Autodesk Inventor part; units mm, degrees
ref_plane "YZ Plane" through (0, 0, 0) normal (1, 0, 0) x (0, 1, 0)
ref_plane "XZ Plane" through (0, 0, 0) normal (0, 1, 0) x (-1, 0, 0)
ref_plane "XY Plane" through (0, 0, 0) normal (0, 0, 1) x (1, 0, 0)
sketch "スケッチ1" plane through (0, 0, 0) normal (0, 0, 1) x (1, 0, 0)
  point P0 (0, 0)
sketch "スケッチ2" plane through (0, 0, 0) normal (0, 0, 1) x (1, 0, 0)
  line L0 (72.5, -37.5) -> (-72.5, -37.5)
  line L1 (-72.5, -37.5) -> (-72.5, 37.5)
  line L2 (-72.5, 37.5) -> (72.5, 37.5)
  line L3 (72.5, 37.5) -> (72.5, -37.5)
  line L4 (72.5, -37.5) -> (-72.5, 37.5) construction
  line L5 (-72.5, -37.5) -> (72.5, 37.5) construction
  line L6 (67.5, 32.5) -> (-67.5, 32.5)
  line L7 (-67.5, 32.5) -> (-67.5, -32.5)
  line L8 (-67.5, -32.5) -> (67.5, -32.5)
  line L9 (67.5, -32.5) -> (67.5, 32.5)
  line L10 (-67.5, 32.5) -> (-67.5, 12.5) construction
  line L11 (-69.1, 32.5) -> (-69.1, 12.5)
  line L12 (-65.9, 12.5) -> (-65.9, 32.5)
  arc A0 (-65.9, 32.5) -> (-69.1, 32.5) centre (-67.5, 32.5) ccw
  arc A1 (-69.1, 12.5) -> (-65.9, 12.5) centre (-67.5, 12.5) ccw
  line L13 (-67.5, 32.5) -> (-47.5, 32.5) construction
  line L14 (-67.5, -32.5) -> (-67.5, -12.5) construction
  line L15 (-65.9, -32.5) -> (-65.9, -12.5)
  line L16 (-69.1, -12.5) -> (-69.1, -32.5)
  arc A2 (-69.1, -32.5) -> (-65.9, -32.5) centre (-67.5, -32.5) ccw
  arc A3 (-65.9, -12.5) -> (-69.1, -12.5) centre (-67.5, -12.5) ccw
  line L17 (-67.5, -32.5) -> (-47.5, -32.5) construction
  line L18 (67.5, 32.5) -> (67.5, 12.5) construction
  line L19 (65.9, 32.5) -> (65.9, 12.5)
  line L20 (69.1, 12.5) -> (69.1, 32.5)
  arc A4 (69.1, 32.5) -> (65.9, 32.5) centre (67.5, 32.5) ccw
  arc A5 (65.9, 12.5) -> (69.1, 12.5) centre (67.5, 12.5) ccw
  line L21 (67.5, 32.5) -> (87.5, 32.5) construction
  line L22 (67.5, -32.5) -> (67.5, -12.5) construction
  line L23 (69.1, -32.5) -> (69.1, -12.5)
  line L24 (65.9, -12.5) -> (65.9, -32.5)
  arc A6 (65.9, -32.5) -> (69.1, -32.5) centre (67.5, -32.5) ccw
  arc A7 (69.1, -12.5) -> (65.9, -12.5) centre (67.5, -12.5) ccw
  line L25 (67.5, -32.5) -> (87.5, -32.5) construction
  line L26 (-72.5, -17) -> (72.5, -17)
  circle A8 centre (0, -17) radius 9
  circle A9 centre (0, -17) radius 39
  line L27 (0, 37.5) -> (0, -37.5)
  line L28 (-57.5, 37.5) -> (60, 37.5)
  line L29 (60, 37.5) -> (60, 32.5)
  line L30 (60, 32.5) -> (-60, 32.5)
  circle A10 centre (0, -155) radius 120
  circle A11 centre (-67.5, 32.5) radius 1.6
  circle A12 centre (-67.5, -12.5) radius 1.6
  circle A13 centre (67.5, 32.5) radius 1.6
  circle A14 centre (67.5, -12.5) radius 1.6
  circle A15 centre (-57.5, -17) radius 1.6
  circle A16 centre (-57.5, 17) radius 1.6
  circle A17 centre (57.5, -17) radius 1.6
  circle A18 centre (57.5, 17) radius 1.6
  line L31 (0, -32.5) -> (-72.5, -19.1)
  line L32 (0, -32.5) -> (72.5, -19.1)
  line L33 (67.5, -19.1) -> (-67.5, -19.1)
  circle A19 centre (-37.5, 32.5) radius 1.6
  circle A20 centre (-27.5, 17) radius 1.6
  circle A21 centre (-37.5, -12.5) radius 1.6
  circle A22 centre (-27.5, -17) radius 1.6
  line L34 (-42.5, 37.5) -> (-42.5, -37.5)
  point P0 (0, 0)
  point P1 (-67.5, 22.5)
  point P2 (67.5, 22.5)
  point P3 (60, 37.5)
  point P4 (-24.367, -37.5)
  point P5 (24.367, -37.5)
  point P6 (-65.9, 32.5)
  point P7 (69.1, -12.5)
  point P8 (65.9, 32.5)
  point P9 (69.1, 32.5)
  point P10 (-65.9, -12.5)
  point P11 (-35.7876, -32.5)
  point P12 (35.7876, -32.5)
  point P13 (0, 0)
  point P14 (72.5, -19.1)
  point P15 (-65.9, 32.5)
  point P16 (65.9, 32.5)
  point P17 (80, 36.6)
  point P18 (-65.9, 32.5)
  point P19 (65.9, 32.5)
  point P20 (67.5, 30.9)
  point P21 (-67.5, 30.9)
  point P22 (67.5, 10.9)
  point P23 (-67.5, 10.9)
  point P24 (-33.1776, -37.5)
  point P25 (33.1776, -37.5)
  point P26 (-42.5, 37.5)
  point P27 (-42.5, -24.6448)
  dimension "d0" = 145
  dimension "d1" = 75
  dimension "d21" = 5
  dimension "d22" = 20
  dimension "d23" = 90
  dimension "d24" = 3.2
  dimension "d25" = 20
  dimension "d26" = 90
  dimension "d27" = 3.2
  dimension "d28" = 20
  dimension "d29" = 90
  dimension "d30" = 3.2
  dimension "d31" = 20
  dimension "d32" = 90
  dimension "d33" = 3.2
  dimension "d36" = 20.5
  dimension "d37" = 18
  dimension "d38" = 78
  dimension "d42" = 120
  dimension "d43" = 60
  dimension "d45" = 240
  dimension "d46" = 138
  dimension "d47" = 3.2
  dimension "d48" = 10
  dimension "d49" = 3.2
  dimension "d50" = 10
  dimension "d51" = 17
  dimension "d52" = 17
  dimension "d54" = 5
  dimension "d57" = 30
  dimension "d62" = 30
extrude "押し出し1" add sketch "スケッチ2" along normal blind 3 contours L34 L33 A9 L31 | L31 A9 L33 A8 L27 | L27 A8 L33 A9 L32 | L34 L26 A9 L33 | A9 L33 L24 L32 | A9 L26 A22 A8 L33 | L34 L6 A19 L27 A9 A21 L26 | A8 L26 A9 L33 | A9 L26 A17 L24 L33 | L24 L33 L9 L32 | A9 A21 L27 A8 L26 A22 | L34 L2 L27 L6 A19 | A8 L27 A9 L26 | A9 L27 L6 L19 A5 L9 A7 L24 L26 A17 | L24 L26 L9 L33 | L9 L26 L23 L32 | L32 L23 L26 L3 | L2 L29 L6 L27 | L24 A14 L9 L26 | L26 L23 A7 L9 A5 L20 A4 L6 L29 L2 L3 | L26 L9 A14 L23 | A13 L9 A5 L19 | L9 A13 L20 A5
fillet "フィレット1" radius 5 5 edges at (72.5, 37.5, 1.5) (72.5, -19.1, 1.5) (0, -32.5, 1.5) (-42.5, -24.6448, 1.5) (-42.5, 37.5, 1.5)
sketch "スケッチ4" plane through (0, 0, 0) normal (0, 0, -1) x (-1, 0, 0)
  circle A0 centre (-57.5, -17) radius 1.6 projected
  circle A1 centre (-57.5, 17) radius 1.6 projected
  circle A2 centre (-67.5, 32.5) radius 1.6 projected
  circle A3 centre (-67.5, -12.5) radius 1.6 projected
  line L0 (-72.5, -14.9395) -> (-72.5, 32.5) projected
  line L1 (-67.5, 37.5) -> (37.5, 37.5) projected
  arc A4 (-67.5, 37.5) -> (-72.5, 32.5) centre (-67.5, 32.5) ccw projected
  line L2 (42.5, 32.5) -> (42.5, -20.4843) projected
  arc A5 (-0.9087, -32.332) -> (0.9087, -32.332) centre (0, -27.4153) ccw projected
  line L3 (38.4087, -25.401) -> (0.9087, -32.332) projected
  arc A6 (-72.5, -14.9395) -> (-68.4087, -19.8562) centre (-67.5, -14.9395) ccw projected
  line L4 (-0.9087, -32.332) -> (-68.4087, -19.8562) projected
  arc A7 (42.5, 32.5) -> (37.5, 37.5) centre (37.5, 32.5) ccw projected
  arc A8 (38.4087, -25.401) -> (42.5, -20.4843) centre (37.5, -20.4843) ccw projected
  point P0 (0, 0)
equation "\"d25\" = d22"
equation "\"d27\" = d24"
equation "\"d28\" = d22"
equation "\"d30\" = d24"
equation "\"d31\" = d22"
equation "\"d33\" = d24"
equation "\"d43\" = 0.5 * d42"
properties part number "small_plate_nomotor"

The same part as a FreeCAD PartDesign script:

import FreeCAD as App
import Part
import Sketcher

V = App.Vector
Q = App.Units.Quantity


def edges_at(feature, points):
    """Names of the edges that pass closest to the given points."""
    edges = feature.Shape.Edges
    near = lambda p: min(range(len(edges)), key=lambda i: edges[i].distToShape(Part.Vertex(*p))[0])
    return sorted({f"Edge{near(p) + 1}" for p in points})


def add_polygon(sketch, points):
    """Adds a closed chain of lines whose ends are joined by coincident constraints."""
    first, n = sketch.GeometryCount, len(points)
    for a, b in zip(points, points[1:] + points[:1]):
        sketch.addGeometry(Part.LineSegment(App.Vector(*a, 0), App.Vector(*b, 0)), False)
    for i in range(n):
        sketch.addConstraint(Sketcher.Constraint("Coincident", first + i, 2, first + (i + 1) % n, 1))

doc = App.newDocument("Part")
params = doc.addObject("Spreadsheet::Sheet", "Params")
for row, (alias, value) in enumerate([
    ("sketch1_diameter", "18 mm"),
    ("sketch1_diameter2", "3.2 mm"),
    ("sketch1_width", "115 mm"),
    ("sketch1_height", "56.6 mm"),
    ("pad1_length", "3 mm"),
    ("fillet_radius", "5 mm"),
], start=1):
    params.set(f"A{row}", alias)
    params.set(f"B{row}", "=" + value)
    params.setAlias(f"B{row}", alias)

body = doc.addObject("PartDesign::Body", "Body")

# Sketch on XY plane
sketch1 = body.newObject("Sketcher::SketchObject", "Sketch")
sketch1.AttachmentSupport = (doc.getObject("XY_Plane"), [""])
sketch1.MapMode = "FlatFace"
add_polygon(sketch1, [(-42.5, -24.6), (0, -32.5), (72.5, -19.1), (72.5, 37.5), (-42.5, 37.5)])  # lines 0-4
sketch1.addGeometry(Part.Circle(V(0, -17, 0), V(0, 0, 1), 9), False)  # 5
sketch1.addGeometry(Part.Circle(V(-37.5, 32.5, 0), V(0, 0, 1), 1.6), False)  # 6
sketch1.addGeometry(Part.Circle(V(-37.5, -12.5, 0), V(0, 0, 1), 1.6), False)  # 7
sketch1.addGeometry(Part.Circle(V(-27.5, 17, 0), V(0, 0, 1), 1.6), False)  # 8
sketch1.addGeometry(Part.Circle(V(-27.5, -17, 0), V(0, 0, 1), 1.6), False)  # 9
sketch1.addGeometry(Part.Circle(V(57.5, 17, 0), V(0, 0, 1), 1.6), False)  # 10
sketch1.addGeometry(Part.Circle(V(67.5, -12.5, 0), V(0, 0, 1), 1.6), False)  # 11
sketch1.addGeometry(Part.Circle(V(57.5, -17, 0), V(0, 0, 1), 1.6), False)  # 12
sketch1.addGeometry(Part.Circle(V(67.5, 32.5, 0), V(0, 0, 1), 1.6), False)  # 13
sketch1.addConstraint(Sketcher.Constraint("Vertical", 2))
sketch1.addConstraint(Sketcher.Constraint("Horizontal", 3))
sketch1.addConstraint(Sketcher.Constraint("Vertical", 4))
sketch1.addConstraint(Sketcher.Constraint("Equal", 6, 7))
sketch1.addConstraint(Sketcher.Constraint("Equal", 7, 8))
sketch1.addConstraint(Sketcher.Constraint("Equal", 8, 9))
sketch1.addConstraint(Sketcher.Constraint("Equal", 9, 10))
sketch1.addConstraint(Sketcher.Constraint("Equal", 10, 11))
sketch1.addConstraint(Sketcher.Constraint("Equal", 11, 12))
sketch1.addConstraint(Sketcher.Constraint("Equal", 12, 13))
sketch1.addConstraint(Sketcher.Constraint("Symmetric", 8, 3, 9, 3, -1))
sketch1.addConstraint(Sketcher.Constraint("Symmetric", 10, 3, 12, 3, -1))
sketch1.addConstraint(Sketcher.Constraint("PointOnObject", 5, 3, -2))
sketch1.addConstraint(Sketcher.Constraint("PointOnObject", 0, 2, -2))
sketch1.addConstraint(Sketcher.Constraint("Horizontal", 5, 3, 9, 3))
sketch1.addConstraint(Sketcher.Constraint("Horizontal", 8, 3, 10, 3))
sketch1.addConstraint(Sketcher.Constraint("Horizontal", 7, 3, 11, 3))
sketch1.addConstraint(Sketcher.Constraint("Horizontal", 6, 3, 13, 3))
sketch1.addConstraint(Sketcher.Constraint("Vertical", 6, 3, 7, 3))
sketch1.addConstraint(Sketcher.Constraint("Vertical", 11, 3, 13, 3))
sketch1.addConstraint(Sketcher.Constraint("Diameter", 5, Q("18 mm")))
sketch1.addConstraint(Sketcher.Constraint("Diameter", 6, Q("3.2 mm")))
sketch1.addConstraint(Sketcher.Constraint("DistanceY", 5, 3, -1, 1, Q("17 mm")))
sketch1.addConstraint(Sketcher.Constraint("DistanceX", 6, 3, 8, 3, Q("10 mm")))
sketch1.addConstraint(Sketcher.Constraint("DistanceX", 10, 3, 11, 3, Q("10 mm")))
sketch1.addConstraint(Sketcher.Constraint("DistanceY", 0, 2, 7, 3, Q("20 mm")))
sketch1.addConstraint(Sketcher.Constraint("DistanceX", 11, 3, 1, 2, Q("5 mm")))
sketch1.addConstraint(Sketcher.Constraint("DistanceY", 13, 3, 2, 2, Q("5 mm")))
sketch1.addConstraint(Sketcher.Constraint("DistanceX", 3, 2, 6, 3, Q("5 mm")))
sketch1.addConstraint(Sketcher.Constraint("DistanceY", 10, 3, 2, 2, Q("20.5 mm")))
sketch1.addConstraint(Sketcher.Constraint("DistanceX", 3, 2, 3, 1, Q("115 mm")))
sketch1.addConstraint(Sketcher.Constraint("DistanceY", 2, 1, 2, 2, Q("56.6 mm")))
sketch1.addConstraint(Sketcher.Constraint("DistanceY", 7, 3, 6, 3, Q("45 mm")))
sketch1.addConstraint(Sketcher.Constraint("DistanceX", 6, 3, -1, 1, Q("37.5 mm")))
sketch1.addConstraint(Sketcher.Constraint("DistanceY", 4, 2, 4, 1, Q("62.1448 mm")))
sketch1.setExpression("Constraints[25]", "Params.sketch1_diameter")
sketch1.setExpression("Constraints[26]", "Params.sketch1_diameter2")
sketch1.setExpression("Constraints[35]", "Params.sketch1_width")
sketch1.setExpression("Constraints[36]", "Params.sketch1_height")
pad1 = body.newObject("PartDesign::Pad", "Pad")
pad1.Profile = sketch1
pad1.setExpression("Length", "Params.pad1_length")
doc.recompute()

fillet = body.newObject("PartDesign::Fillet", "Fillet")
fillet.Base = (pad1, edges_at(pad1, [
    (72.5, 37.5, 1.5),
    (72.5, -19.1, 1.5),
    (0, -32.5, 1.5),
    (-42.5, -24.645, 1.5),
    (-42.5, 37.5, 1.5),
]))
fillet.setExpression("Radius", "Params.fillet_radius")

doc.recompute()
